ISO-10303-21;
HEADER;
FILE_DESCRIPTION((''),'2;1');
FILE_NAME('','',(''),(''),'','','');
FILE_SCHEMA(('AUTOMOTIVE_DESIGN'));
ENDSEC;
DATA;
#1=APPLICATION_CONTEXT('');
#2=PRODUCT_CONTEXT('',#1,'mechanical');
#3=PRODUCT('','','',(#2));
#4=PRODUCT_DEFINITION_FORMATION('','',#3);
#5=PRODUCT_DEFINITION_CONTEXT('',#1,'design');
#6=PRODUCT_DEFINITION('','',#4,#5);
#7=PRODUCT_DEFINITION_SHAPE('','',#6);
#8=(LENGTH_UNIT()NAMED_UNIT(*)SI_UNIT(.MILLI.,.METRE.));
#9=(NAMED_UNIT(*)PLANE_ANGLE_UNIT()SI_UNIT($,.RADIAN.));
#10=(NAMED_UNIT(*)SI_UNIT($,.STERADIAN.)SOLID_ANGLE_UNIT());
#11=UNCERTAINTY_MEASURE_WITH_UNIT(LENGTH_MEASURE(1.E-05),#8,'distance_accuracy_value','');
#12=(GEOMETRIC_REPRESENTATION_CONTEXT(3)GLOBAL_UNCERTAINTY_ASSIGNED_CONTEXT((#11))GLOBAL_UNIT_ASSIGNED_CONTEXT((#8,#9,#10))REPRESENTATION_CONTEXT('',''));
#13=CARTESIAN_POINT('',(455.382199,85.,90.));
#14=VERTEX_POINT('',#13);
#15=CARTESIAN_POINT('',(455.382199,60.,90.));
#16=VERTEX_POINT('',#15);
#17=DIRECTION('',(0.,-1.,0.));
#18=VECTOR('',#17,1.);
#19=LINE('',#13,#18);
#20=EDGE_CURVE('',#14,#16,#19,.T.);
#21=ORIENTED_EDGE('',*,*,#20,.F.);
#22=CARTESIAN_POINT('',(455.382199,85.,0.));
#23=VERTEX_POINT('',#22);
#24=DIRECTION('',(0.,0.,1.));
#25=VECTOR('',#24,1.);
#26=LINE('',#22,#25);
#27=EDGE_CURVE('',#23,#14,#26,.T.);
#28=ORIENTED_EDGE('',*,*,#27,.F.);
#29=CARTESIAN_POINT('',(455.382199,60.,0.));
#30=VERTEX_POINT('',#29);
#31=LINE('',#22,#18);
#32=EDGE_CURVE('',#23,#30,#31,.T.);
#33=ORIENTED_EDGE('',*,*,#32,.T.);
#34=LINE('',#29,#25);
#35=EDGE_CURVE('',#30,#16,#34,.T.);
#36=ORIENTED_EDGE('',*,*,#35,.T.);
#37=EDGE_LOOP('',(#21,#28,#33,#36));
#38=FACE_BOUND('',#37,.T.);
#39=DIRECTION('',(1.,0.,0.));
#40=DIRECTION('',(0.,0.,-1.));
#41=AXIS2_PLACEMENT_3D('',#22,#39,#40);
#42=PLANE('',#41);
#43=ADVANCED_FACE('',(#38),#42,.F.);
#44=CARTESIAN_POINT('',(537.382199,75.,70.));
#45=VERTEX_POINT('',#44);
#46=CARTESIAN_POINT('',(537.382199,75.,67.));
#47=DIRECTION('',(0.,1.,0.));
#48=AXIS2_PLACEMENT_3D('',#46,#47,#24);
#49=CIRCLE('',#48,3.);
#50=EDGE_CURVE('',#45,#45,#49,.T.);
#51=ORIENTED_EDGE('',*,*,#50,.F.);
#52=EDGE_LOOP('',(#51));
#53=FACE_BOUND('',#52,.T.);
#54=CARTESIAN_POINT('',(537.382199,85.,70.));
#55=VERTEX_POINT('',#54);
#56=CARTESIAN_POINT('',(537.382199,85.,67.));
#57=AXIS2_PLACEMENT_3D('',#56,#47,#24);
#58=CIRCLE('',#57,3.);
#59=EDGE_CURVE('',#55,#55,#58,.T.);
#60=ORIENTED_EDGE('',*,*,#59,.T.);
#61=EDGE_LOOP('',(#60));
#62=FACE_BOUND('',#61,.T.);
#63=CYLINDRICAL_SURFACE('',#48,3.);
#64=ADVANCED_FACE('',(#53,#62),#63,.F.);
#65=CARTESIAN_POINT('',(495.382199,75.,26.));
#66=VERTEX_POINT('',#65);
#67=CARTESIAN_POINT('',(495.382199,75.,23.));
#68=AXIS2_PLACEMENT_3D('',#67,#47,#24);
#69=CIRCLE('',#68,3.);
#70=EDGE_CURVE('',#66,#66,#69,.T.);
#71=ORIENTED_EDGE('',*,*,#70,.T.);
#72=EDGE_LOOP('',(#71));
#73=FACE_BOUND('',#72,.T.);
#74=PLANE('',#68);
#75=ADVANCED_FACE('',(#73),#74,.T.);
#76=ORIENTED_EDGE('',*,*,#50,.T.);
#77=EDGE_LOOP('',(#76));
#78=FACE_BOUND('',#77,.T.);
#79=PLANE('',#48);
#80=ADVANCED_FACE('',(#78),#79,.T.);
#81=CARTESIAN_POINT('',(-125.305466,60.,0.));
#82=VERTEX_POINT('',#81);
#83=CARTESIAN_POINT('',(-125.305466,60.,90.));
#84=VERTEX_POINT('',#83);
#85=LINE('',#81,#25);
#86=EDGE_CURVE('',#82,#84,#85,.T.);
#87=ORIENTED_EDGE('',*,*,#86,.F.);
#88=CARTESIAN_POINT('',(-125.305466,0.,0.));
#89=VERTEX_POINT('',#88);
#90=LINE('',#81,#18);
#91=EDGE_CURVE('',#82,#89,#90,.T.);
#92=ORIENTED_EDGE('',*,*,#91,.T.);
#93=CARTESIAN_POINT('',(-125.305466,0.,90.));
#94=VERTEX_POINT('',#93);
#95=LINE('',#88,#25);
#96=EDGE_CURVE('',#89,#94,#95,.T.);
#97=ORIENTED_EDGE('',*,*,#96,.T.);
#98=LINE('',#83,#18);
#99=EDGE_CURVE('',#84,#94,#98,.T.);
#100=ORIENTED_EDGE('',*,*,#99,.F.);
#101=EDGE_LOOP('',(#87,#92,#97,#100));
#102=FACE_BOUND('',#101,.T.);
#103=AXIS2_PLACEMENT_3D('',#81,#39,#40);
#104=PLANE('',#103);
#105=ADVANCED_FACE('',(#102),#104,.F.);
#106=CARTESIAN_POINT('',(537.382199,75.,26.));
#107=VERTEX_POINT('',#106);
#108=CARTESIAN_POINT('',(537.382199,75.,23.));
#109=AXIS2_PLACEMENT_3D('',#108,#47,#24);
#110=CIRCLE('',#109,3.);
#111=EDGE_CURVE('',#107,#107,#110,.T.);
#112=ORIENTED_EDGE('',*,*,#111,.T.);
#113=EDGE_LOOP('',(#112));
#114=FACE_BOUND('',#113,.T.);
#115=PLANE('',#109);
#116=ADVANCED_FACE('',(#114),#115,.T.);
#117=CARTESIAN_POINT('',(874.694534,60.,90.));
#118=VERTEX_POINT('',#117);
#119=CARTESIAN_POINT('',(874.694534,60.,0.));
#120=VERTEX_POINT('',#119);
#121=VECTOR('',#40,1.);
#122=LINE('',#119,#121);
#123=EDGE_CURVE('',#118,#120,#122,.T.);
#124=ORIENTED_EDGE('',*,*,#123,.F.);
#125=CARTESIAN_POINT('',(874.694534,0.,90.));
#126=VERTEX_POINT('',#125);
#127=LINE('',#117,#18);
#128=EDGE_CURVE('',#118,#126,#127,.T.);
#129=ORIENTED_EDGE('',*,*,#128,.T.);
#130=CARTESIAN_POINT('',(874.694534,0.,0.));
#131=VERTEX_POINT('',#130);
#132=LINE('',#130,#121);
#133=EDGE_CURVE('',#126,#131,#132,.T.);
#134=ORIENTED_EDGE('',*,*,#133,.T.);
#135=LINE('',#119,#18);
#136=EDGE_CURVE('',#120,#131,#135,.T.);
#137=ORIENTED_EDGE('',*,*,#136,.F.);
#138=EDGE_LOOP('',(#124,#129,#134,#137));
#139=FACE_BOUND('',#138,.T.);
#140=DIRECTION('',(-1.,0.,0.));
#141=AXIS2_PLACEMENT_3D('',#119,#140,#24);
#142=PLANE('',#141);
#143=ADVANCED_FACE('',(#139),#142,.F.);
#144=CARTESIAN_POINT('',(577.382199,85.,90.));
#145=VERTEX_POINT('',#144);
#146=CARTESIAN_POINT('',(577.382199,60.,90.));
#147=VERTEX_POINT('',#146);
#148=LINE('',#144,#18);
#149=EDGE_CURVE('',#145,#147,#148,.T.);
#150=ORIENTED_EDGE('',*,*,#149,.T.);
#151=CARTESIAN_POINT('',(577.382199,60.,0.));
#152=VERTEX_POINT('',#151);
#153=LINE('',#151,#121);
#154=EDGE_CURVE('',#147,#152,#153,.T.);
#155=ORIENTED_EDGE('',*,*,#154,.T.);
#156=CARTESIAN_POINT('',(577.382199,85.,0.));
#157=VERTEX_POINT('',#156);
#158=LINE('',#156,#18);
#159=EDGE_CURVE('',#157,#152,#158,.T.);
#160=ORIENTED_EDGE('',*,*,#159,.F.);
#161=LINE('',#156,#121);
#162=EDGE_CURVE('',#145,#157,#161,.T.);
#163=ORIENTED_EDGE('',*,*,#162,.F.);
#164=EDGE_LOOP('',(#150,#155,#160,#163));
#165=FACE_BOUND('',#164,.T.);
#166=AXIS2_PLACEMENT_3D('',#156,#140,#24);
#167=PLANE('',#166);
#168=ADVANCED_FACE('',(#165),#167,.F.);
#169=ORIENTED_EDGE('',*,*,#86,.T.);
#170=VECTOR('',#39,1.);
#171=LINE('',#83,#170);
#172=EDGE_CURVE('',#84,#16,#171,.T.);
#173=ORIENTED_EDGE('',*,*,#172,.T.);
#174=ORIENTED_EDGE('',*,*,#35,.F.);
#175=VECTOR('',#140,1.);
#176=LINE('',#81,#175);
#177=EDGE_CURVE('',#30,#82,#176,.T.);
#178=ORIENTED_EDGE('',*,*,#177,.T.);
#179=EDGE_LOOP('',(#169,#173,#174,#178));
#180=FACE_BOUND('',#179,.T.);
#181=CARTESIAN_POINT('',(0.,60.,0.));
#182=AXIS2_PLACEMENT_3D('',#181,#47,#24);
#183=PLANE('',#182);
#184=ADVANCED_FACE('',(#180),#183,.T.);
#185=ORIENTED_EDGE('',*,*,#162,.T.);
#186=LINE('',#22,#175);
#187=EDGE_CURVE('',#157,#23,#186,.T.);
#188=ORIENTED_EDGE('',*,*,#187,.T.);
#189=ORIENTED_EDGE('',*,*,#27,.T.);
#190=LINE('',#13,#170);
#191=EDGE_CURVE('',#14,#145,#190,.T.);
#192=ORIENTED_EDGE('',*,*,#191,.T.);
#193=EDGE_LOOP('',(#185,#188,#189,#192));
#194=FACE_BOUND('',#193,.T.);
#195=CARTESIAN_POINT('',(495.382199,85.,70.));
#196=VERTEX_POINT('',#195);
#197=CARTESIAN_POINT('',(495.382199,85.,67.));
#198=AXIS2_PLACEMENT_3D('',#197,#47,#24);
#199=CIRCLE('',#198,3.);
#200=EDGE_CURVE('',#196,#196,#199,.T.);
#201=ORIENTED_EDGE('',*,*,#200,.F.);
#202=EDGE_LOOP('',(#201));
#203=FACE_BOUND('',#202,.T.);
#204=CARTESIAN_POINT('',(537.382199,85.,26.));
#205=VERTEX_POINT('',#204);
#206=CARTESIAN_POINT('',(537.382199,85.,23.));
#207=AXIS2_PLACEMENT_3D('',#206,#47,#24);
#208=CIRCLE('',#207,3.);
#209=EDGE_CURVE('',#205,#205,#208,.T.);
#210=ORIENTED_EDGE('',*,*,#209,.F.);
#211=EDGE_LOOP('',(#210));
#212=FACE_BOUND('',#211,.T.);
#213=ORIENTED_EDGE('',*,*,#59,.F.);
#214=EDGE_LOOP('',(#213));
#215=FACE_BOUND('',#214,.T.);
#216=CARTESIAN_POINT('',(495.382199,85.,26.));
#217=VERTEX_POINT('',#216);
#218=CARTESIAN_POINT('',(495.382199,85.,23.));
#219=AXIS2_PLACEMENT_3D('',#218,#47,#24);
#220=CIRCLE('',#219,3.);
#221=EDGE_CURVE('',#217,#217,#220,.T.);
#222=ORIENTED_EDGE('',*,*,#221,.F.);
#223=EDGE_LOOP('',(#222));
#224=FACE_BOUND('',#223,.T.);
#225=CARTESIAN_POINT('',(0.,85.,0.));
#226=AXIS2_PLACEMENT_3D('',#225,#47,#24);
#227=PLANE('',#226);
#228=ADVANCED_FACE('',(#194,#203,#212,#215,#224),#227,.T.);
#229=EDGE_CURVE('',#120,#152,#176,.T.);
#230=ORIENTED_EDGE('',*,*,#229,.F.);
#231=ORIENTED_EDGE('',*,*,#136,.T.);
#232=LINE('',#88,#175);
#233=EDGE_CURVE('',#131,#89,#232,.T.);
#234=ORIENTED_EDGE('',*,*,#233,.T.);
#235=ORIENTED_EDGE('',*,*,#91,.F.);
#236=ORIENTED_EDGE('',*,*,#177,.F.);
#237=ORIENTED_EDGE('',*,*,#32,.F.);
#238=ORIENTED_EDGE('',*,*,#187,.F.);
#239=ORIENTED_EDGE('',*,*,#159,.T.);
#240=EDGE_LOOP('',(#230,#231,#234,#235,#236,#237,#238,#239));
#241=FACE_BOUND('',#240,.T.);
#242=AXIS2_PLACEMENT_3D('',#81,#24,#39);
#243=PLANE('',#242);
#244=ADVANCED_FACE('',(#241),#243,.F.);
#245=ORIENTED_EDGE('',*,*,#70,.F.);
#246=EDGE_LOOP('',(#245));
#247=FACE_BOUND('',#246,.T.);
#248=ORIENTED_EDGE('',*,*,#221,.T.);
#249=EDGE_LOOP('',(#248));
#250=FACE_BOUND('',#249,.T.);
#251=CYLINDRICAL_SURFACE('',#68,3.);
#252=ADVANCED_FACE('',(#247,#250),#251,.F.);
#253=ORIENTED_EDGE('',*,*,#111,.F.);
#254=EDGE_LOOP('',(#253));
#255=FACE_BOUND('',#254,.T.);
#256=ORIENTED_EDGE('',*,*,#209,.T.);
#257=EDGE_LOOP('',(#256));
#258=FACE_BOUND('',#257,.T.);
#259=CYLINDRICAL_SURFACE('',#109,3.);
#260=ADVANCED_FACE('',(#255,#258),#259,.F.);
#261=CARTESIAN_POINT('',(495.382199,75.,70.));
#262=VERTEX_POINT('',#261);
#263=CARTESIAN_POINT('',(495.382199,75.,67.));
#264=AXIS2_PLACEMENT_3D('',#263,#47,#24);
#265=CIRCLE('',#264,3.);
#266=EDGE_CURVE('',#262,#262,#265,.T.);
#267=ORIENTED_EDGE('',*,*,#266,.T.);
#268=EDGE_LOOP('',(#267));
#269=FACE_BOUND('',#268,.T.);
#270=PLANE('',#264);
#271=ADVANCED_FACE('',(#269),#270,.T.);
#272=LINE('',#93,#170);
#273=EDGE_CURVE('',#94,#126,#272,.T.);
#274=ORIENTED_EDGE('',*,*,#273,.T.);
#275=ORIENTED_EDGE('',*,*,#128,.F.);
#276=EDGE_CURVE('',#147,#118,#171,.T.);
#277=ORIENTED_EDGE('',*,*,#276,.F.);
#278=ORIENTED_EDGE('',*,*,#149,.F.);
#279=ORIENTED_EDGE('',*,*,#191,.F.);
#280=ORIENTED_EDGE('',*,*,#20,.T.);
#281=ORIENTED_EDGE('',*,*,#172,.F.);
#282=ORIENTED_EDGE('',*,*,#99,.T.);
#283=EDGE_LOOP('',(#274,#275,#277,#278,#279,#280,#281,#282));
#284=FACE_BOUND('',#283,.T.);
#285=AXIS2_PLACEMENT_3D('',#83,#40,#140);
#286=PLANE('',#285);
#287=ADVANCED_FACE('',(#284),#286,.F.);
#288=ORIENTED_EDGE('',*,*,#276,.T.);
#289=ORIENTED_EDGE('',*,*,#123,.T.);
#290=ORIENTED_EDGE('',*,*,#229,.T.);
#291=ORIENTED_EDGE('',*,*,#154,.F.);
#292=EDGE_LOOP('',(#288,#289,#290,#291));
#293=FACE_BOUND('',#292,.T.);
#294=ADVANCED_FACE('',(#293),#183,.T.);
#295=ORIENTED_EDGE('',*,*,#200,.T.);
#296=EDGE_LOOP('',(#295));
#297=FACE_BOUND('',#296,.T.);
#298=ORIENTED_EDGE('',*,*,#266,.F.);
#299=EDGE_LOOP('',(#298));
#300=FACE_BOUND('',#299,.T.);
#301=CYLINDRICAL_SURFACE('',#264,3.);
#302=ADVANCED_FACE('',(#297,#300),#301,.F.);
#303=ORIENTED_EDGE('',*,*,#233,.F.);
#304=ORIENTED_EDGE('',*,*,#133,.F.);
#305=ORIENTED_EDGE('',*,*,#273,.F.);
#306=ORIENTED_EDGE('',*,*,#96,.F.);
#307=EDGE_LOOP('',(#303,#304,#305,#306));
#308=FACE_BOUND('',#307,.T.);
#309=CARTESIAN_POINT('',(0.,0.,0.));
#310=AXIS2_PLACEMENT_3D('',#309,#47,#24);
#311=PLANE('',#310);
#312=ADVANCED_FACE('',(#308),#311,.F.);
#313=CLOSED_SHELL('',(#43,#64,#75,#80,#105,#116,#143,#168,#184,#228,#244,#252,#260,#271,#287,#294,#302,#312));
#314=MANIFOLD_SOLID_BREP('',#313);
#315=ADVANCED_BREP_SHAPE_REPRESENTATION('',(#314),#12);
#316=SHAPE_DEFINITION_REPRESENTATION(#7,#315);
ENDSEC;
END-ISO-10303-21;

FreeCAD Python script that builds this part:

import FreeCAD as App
import Part
import Sketcher

doc = App.newDocument("Part")
body = doc.addObject("PartDesign::Body", "Body")

# Sketch on XZ plane
sketch1 = doc.addObject("Sketcher::SketchObject", "Sketch")
body.addObject(sketch1)
sketch1.AttachmentSupport = (doc.XZ_Plane, [""])
sketch1.MapMode = "FlatFace"
sketch1.addGeometry(Part.LineSegment(App.Vector(-125, 0, 0), App.Vector(-125, 90, 0)), False)
sketch1.addGeometry(Part.LineSegment(App.Vector(-125, 90, 0), App.Vector(875, 90, 0)), False)
sketch1.addGeometry(Part.LineSegment(App.Vector(875, 90, 0), App.Vector(875, 0, 0)), False)
sketch1.addGeometry(Part.LineSegment(App.Vector(875, 0, 0), App.Vector(-125, 0, 0)), False)
sketch1.addConstraint(Sketcher.Constraint("Coincident", 0, 2, 1, 1))
sketch1.addConstraint(Sketcher.Constraint("Coincident", 1, 2, 2, 1))
sketch1.addConstraint(Sketcher.Constraint("Coincident", 2, 2, 3, 1))
sketch1.addConstraint(Sketcher.Constraint("Coincident", 3, 2, 0, 1))
sketch1.addConstraint(Sketcher.Constraint("Vertical", 0))
sketch1.addConstraint(Sketcher.Constraint("Horizontal", 1))
sketch1.addConstraint(Sketcher.Constraint("Vertical", 2))
sketch1.addConstraint(Sketcher.Constraint("Horizontal", 3))
sketch1.addConstraint(Sketcher.Constraint("PointOnObject", 2, 2, -1))
sketch1.addConstraint(Sketcher.Constraint("DistanceX", 1, 1, 1, 2, 1000.0))
sketch1.addConstraint(Sketcher.Constraint("DistanceY", 0, 1, 0, 2, 90.0))
sketch1.addConstraint(Sketcher.Constraint("DistanceX", 0, 2, -1, 1, 125.305466))
pad1 = doc.addObject("PartDesign::Pad", "Pad")
body.addObject(pad1)
pad1.Profile = sketch1
pad1.Length = 60
pad1.Reversed = True

# Sketch on XZ plane
sketch2 = doc.addObject("Sketcher::SketchObject", "Sketch001")
body.addObject(sketch2)
sketch2.AttachmentSupport = (doc.XZ_Plane, [""])
sketch2.MapMode = "FlatFace"
sketch2.AttachmentOffset = App.Placement(App.Vector(0, 0, -60), App.Rotation())
sketch2.addGeometry(Part.LineSegment(App.Vector(455, 0, 0), App.Vector(455, 90, 0)), False)
sketch2.addGeometry(Part.LineSegment(App.Vector(455, 90, 0), App.Vector(577, 90, 0)), False)
sketch2.addGeometry(Part.LineSegment(App.Vector(577, 90, 0), App.Vector(577, 0, 0)), False)
sketch2.addGeometry(Part.LineSegment(App.Vector(577, 0, 0), App.Vector(455, 0, 0)), False)
sketch2.addConstraint(Sketcher.Constraint("Coincident", 0, 2, 1, 1))
sketch2.addConstraint(Sketcher.Constraint("Coincident", 1, 2, 2, 1))
sketch2.addConstraint(Sketcher.Constraint("Coincident", 2, 2, 3, 1))
sketch2.addConstraint(Sketcher.Constraint("Coincident", 3, 2, 0, 1))
sketch2.addConstraint(Sketcher.Constraint("Vertical", 0))
sketch2.addConstraint(Sketcher.Constraint("Horizontal", 1))
sketch2.addConstraint(Sketcher.Constraint("Vertical", 2))
sketch2.addConstraint(Sketcher.Constraint("Horizontal", 3))
sketch2.addConstraint(Sketcher.Constraint("PointOnObject", 2, 2, -1))
sketch2.addConstraint(Sketcher.Constraint("DistanceX", 1, 1, 1, 2, 122.0))
sketch2.addConstraint(Sketcher.Constraint("DistanceY", 0, 1, 0, 2, 90.0))
sketch2.addConstraint(Sketcher.Constraint("DistanceX", -1, 1, 0, 2, 455.382199))
pad2 = doc.addObject("PartDesign::Pad", "Pad001")
body.addObject(pad2)
pad2.Profile = sketch2
pad2.Length = 25
pad2.Reversed = True

# Sketch on XZ plane
sketch3 = doc.addObject("Sketcher::SketchObject", "Sketch002")
body.addObject(sketch3)
sketch3.AttachmentSupport = (doc.XZ_Plane, [""])
sketch3.MapMode = "FlatFace"
sketch3.AttachmentOffset = App.Placement(App.Vector(0, 0, -85), App.Rotation())
sketch3.addGeometry(Part.Circle(App.Vector(495.4, 23, 0), App.Vector(0, 0, 1), 3), False)
sketch3.addGeometry(Part.Circle(App.Vector(537.4, 23, 0), App.Vector(0, 0, 1), 3), False)
sketch3.addGeometry(Part.Circle(App.Vector(537.4, 67, 0), App.Vector(0, 0, 1), 3), False)
sketch3.addGeometry(Part.Circle(App.Vector(495.4, 67, 0), App.Vector(0, 0, 1), 3), False)
sketch3.addConstraint(Sketcher.Constraint("Equal", 0, 1))
sketch3.addConstraint(Sketcher.Constraint("Equal", 1, 2))
sketch3.addConstraint(Sketcher.Constraint("Equal", 2, 3))
sketch3.addConstraint(Sketcher.Constraint("Horizontal", 0, 3, 1, 3))
sketch3.addConstraint(Sketcher.Constraint("Horizontal", 2, 3, 3, 3))
sketch3.addConstraint(Sketcher.Constraint("Vertical", 1, 3, 2, 3))
sketch3.addConstraint(Sketcher.Constraint("Vertical", 0, 3, 3, 3))
sketch3.addConstraint(Sketcher.Constraint("Diameter", 0, 6.0))
sketch3.addConstraint(Sketcher.Constraint("DistanceY", -1, 1, 0, 3, 23.0))
sketch3.addConstraint(Sketcher.Constraint("DistanceY", -1, 1, 2, 3, 67.0))
sketch3.addConstraint(Sketcher.Constraint("DistanceX", 0, 3, 1, 3, 42.0))
sketch3.addConstraint(Sketcher.Constraint("DistanceX", -1, 1, 0, 3, 495.382199))
pocket1 = doc.addObject("PartDesign::Pocket", "Pocket")
body.addObject(pocket1)
pocket1.Profile = sketch3
pocket1.Length = 10
pocket1.Reversed = True

doc.recompute()
